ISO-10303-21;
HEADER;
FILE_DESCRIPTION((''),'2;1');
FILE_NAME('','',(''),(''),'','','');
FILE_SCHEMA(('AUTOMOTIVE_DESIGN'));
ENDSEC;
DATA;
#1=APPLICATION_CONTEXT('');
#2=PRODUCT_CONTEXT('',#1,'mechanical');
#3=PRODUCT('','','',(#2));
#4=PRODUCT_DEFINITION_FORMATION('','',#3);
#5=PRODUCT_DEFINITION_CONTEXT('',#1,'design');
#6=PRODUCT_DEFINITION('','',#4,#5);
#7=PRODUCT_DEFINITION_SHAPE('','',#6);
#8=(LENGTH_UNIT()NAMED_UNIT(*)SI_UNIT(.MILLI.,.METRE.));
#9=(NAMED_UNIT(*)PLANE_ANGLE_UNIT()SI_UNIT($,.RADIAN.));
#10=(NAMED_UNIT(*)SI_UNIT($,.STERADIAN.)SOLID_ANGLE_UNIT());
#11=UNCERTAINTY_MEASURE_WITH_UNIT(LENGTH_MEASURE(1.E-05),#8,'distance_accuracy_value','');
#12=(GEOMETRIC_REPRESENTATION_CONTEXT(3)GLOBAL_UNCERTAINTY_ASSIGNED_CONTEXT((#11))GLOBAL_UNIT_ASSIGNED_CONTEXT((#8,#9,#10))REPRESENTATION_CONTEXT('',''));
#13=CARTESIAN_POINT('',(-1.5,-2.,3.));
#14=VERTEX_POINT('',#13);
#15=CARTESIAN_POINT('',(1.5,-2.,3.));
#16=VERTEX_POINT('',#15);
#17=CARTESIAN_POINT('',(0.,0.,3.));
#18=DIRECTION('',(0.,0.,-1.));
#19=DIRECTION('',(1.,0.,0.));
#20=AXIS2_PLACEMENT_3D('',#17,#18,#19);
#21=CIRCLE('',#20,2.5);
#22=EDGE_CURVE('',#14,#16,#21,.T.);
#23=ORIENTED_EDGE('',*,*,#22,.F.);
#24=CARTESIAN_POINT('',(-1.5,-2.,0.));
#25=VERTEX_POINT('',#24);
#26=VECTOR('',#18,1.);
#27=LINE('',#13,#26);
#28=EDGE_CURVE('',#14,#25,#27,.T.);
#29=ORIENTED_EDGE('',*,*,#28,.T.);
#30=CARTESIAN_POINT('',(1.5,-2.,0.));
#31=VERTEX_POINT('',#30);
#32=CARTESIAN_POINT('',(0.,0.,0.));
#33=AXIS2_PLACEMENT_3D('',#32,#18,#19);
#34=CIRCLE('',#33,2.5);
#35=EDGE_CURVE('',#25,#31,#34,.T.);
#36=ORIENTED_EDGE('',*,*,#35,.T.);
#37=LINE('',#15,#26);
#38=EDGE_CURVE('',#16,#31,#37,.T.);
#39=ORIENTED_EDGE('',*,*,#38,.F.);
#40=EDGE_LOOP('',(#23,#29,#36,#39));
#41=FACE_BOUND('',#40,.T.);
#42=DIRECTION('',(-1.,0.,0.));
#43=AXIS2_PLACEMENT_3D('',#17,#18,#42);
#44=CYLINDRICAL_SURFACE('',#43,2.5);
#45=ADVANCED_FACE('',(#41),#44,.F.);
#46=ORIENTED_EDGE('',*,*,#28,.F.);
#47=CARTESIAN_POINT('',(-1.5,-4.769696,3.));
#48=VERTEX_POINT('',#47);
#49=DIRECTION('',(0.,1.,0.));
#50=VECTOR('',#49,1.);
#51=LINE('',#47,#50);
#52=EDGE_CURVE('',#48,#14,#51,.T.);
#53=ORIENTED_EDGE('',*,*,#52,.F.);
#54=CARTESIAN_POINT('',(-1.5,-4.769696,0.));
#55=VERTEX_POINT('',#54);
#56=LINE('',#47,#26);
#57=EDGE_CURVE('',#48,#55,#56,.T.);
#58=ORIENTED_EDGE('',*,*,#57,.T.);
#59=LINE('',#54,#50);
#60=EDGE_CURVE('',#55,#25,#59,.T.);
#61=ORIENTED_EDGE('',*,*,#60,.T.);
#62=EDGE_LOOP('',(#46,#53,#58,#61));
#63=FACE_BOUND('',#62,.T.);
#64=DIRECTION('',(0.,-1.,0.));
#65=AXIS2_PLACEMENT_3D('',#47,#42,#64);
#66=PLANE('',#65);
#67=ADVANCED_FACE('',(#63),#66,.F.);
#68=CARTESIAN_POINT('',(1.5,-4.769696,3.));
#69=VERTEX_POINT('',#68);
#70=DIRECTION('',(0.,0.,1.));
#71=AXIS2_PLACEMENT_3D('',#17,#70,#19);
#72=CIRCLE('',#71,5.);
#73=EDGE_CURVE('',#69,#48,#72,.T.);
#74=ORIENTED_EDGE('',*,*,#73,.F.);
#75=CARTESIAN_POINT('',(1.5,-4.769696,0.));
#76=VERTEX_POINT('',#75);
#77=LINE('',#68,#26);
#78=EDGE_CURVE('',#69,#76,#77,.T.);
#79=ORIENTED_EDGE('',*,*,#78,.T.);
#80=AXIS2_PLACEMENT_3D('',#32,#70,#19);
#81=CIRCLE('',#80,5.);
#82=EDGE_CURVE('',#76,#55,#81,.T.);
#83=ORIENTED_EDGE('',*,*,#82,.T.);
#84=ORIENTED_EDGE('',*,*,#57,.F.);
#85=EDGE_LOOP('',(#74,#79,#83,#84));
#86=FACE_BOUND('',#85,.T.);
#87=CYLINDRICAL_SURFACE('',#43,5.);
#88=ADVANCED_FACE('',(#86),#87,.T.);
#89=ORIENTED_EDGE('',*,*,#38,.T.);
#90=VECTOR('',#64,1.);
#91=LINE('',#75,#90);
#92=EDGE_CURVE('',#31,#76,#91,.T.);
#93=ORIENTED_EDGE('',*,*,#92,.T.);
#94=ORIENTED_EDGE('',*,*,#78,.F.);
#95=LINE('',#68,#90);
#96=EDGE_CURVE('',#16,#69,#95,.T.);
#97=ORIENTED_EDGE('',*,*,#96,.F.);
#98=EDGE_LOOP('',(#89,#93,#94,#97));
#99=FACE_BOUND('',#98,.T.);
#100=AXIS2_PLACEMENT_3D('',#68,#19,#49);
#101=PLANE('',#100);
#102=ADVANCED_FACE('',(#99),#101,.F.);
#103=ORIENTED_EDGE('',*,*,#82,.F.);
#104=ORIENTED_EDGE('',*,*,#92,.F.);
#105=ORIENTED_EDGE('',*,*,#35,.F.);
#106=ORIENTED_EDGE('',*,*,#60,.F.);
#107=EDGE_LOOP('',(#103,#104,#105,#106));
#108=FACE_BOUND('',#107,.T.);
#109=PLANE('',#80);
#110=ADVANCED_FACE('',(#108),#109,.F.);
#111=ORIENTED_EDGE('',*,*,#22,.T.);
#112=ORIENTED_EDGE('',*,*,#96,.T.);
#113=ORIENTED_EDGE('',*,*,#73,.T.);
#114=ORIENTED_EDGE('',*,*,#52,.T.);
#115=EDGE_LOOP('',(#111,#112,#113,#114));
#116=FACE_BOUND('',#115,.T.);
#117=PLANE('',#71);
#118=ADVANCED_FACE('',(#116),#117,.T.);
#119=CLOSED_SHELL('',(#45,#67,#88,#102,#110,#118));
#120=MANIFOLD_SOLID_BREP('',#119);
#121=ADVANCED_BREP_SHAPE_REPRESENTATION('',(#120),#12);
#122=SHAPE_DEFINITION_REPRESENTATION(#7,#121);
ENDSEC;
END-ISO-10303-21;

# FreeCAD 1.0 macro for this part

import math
import FreeCAD as App
import Part
import Sketcher

V = App.Vector

doc = App.newDocument("Part")
body = doc.addObject("PartDesign::Body", "Body")

# Sketch on XY plane
sketch1 = body.newObject("Sketcher::SketchObject", "Sketch")
sketch1.AttachmentSupport = (doc.getObject("XY_Plane"), [""])
sketch1.MapMode = "FlatFace"
sketch1.addGeometry([
    Part.LineSegment(V(-1.5, -4.8, 0), V(-1.5, -2, 0)),
    Part.ArcOfCircle(Part.Circle(V(0, 0, 0), V(0, 0, 1), 2.5), math.radians(-53), math.radians(233)),
    Part.LineSegment(V(1.5, -2, 0), V(1.5, -4.8, 0)),
    Part.ArcOfCircle(Part.Circle(V(0, 0, 0), V(0, 0, 1), 5), math.radians(-73), math.radians(253)),
], False)
sketch1.addConstraint([
    Sketcher.Constraint("Coincident", 0, 2, 1, 2),
    Sketcher.Constraint("Coincident", 1, 1, 2, 1),
    Sketcher.Constraint("Coincident", 2, 2, 3, 1),
    Sketcher.Constraint("Coincident", 3, 2, 0, 1),
    Sketcher.Constraint("Vertical", 0),
    Sketcher.Constraint("Vertical", 2),
    Sketcher.Constraint("Coincident", 1, 3, -1, 1),
    Sketcher.Constraint("Coincident", 3, 3, -1, 1),
    Sketcher.Constraint("Horizontal", 0, 2, 1, 1),
    Sketcher.Constraint("Radius", 3, 5.0),
    Sketcher.Constraint("Radius", 1, 2.5),
    Sketcher.Constraint("DistanceY", 0, 2, -1, 1, 2.0),
])
pad1 = body.newObject("PartDesign::Pad", "Pad")
pad1.Profile = sketch1
pad1.Length = 3

doc.recompute()
